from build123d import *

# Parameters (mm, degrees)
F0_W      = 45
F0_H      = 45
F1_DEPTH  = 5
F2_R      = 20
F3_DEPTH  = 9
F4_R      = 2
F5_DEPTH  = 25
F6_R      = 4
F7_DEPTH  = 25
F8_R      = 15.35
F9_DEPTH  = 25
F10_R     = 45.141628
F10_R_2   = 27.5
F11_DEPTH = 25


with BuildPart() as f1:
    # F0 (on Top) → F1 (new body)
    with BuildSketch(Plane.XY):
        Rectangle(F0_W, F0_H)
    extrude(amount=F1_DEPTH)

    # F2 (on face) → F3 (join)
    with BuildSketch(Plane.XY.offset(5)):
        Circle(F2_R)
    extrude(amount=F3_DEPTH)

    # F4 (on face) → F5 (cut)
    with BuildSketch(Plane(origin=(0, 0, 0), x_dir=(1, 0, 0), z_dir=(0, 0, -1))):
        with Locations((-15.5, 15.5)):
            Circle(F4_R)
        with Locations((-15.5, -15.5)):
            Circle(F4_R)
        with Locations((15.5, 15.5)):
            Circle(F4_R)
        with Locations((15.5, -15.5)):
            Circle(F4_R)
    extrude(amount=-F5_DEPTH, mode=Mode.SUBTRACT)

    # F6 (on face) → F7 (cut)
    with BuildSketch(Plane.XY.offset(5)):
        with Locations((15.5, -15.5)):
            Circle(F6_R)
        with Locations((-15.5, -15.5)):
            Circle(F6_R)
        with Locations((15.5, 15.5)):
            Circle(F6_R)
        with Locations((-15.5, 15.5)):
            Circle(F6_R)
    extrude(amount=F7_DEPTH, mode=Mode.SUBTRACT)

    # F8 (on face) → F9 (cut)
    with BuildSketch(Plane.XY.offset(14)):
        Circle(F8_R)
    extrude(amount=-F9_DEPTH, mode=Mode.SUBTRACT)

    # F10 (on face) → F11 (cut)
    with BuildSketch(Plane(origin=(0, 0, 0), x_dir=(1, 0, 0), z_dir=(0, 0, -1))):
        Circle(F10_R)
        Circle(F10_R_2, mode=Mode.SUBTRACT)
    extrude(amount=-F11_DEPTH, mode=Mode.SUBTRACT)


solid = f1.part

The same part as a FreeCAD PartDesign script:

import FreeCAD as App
import Part
import Sketcher
from FreeCAD import Vector


def add_polygon(sketch, points):
    """Adds a closed chain of lines whose ends are joined by coincident constraints."""
    first, n = sketch.GeometryCount, len(points)
    for a, b in zip(points, points[1:] + points[:1]):
        sketch.addGeometry(Part.LineSegment(App.Vector(*a, 0), App.Vector(*b, 0)), False)
    for i in range(n):
        sketch.addConstraint(Sketcher.Constraint("Coincident", first + i, 2, first + (i + 1) % n, 1))

doc = App.newDocument("Part")
body = doc.addObject("PartDesign::Body", "Body")

sketch1 = body.newObject("Sketcher::SketchObject", "Sketch")
sketch1.AttachmentSupport = (doc.getObject("XY_Plane"), [""])
sketch1.MapMode = "FlatFace"
add_polygon(sketch1, [(-22.5, 22.5), (-22.5, -22.5), (22.5, -22.5), (22.5, 22.5)])
sketch1.addConstraint([
    Sketcher.Constraint("Vertical", 0),
    Sketcher.Constraint("Horizontal", 1),
    Sketcher.Constraint("Vertical", 2),
    Sketcher.Constraint("Horizontal", 3),
    Sketcher.Constraint("Symmetric", 0, 2, 2, 2, -1, 1),
    Sketcher.Constraint("Equal", 3, 0),
    Sketcher.Constraint("DistanceX", 1, 1, 1, 2, 45.0),
])
pad1 = body.newObject("PartDesign::Pad", "Pad")
pad1.Profile = sketch1
pad1.Length = 5

sketch2 = body.newObject("Sketcher::SketchObject", "Sketch001")
sketch2.AttachmentSupport = (doc.getObject("XY_Plane"), [""])
sketch2.MapMode = "FlatFace"
sketch2.AttachmentOffset = App.Placement(Vector(0, 0, 5), App.Rotation())
sketch2.addGeometry(Part.Circle(Vector(0, 0, 0), Vector(0, 0, 1), 20), False)
sketch2.addConstraint([
    Sketcher.Constraint("Coincident", 0, 3, -1, 1),
    Sketcher.Constraint("Diameter", 0, 40.0),
])
pad2 = body.newObject("PartDesign::Pad", "Pad001")
pad2.Profile = sketch2
pad2.Length = 9

sketch3 = body.newObject("Sketcher::SketchObject", "Sketch002")
sketch3.AttachmentSupport = (doc.getObject("XY_Plane"), [""])
sketch3.MapMode = "FlatFace"
sketch3.addGeometry([
    Part.Circle(Vector(-15.5, -15.5, 0), Vector(0, 0, 1), 2),
    Part.Circle(Vector(-15.5, 15.5, 0), Vector(0, 0, 1), 2),
    Part.Circle(Vector(15.5, -15.5, 0), Vector(0, 0, 1), 2),
    Part.Circle(Vector(15.5, 15.5, 0), Vector(0, 0, 1), 2),
], False)
sketch3.addConstraint([
    Sketcher.Constraint("Equal", 0, 1),
    Sketcher.Constraint("Equal", 1, 2),
    Sketcher.Constraint("Equal", 2, 3),
    Sketcher.Constraint("Symmetric", 1, 3, 2, 3, -1, 1),
    Sketcher.Constraint("Symmetric", 0, 3, 3, 3, -1, 1),
    Sketcher.Constraint("Symmetric", 0, 3, 2, 3, -2),
    Sketcher.Constraint("Diameter", 0, 4.0),
    Sketcher.Constraint("DistanceY", 0, 3, 1, 3, 31.0),
    Sketcher.Constraint("DistanceX", 0, 3, 2, 3, 31.0),
])
pocket1 = body.newObject("PartDesign::Pocket", "Pocket")
pocket1.Profile = sketch3
pocket1.Length = 25
pocket1.Reversed = True

sketch4 = body.newObject("Sketcher::SketchObject", "Sketch003")
sketch4.AttachmentSupport = (doc.getObject("XY_Plane"), [""])
sketch4.MapMode = "FlatFace"
sketch4.AttachmentOffset = App.Placement(Vector(0, 0, 5), App.Rotation())
sketch4.addGeometry([
    Part.Circle(Vector(15.5, -15.5, 0), Vector(0, 0, 1), 4),
    Part.Circle(Vector(-15.5, -15.5, 0), Vector(0, 0, 1), 4),
    Part.Circle(Vector(15.5, 15.5, 0), Vector(0, 0, 1), 4),
    Part.Circle(Vector(-15.5, 15.5, 0), Vector(0, 0, 1), 4),
], False)
sketch4.addConstraint([
    Sketcher.Constraint("Equal", 0, 1),
    Sketcher.Constraint("Equal", 1, 2),
    Sketcher.Constraint("Equal", 2, 3),
    Sketcher.Constraint("Symmetric", 1, 3, 2, 3, -1, 1),
    Sketcher.Constraint("Symmetric", 0, 3, 3, 3, -1, 1),
    Sketcher.Constraint("Symmetric", 0, 3, 1, 3, -2),
    Sketcher.Constraint("Diameter", 0, 8.0),
    Sketcher.Constraint("DistanceX", 1, 3, 0, 3, 31.0),
    Sketcher.Constraint("DistanceY", 0, 3, 2, 3, 31.0),
])
pocket2 = body.newObject("PartDesign::Pocket", "Pocket001")
pocket2.Profile = sketch4
pocket2.Length = 25
pocket2.Reversed = True

sketch5 = body.newObject("Sketcher::SketchObject", "Sketch004")
sketch5.AttachmentSupport = (doc.getObject("XY_Plane"), [""])
sketch5.MapMode = "FlatFace"
sketch5.AttachmentOffset = App.Placement(Vector(0, 0, 14), App.Rotation())
sketch5.addGeometry(Part.Circle(Vector(0, 0, 0), Vector(0, 0, 1), 15.35), False)
sketch5.addConstraint([
    Sketcher.Constraint("Coincident", 0, 3, -1, 1),
    Sketcher.Constraint("Diameter", 0, 30.7),
])
pocket3 = body.newObject("PartDesign::Pocket", "Pocket002")
pocket3.Profile = sketch5
pocket3.Length = 25

sketch6 = body.newObject("Sketcher::SketchObject", "Sketch005")
sketch6.AttachmentSupport = (doc.getObject("XY_Plane"), [""])
sketch6.MapMode = "FlatFace"
sketch6.addGeometry([
    Part.Circle(Vector(0, 0, 0), Vector(0, 0, 1), 45.141628),
    Part.Circle(Vector(0, 0, 0), Vector(0, 0, 1), 27.5),
], False)
sketch6.addConstraint([
    Sketcher.Constraint("Coincident", 0, 3, -1, 1),
    Sketcher.Constraint("Coincident", 1, 3, -1, 1),
    Sketcher.Constraint("Diameter", 1, 55.0),
    Sketcher.Constraint("Diameter", 0, 90.283256),
])
pocket4 = body.newObject("PartDesign::Pocket", "Pocket003")
pocket4.Profile = sketch6
pocket4.Length = 25
pocket4.Reversed = True

doc.recompute()
